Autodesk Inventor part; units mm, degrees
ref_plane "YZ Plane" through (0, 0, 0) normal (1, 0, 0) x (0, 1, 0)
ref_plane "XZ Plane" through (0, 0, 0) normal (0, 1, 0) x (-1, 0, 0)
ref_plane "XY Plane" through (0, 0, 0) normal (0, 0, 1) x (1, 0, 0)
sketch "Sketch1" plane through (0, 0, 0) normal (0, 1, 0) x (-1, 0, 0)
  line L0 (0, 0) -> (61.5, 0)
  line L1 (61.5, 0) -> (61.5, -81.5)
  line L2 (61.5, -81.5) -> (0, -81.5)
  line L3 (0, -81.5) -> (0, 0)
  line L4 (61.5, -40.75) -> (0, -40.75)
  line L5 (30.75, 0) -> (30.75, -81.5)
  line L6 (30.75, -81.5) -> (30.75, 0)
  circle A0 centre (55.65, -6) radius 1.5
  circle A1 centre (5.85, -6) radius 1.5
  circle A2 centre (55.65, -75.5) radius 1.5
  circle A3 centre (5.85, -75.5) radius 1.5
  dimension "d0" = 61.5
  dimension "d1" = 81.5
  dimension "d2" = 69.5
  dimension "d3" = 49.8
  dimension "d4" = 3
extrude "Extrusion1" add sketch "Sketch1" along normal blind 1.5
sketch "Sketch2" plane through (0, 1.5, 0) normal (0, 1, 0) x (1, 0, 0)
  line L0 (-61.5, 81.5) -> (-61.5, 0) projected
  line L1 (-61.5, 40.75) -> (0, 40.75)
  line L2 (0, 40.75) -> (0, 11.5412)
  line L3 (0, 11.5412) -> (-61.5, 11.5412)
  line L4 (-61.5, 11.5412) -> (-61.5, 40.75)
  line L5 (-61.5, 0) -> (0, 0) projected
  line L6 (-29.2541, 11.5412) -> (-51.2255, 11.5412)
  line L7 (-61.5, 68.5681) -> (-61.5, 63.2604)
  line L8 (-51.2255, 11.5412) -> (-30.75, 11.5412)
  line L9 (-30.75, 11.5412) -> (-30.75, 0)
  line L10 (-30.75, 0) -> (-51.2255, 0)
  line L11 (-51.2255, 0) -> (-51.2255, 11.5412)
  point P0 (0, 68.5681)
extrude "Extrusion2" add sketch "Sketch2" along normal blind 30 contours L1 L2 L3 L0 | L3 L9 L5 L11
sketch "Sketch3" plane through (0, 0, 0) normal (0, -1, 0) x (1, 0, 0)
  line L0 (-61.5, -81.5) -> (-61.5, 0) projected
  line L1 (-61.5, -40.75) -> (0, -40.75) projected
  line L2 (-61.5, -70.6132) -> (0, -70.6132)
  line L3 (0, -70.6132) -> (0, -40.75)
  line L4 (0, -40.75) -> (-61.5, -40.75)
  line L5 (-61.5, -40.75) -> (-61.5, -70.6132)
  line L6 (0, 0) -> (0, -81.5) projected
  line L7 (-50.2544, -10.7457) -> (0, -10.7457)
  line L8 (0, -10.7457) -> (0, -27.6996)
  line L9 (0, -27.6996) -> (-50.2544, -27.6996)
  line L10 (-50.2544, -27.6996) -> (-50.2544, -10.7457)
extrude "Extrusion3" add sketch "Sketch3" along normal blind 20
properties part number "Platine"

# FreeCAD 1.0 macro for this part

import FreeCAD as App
import Part
import Sketcher

V = App.Vector
Q = App.Units.Quantity

doc = App.newDocument("Part")
body = doc.addObject("PartDesign::Body", "Body")

# Sketch on XZ plane
sketch1 = body.newObject("Sketcher::SketchObject", "Sketch")
sketch1.AttachmentSupport = (doc.getObject("XZ_Plane"), [""])
sketch1.MapMode = "FlatFace"
sketch1.addGeometry(Part.LineSegment(V(0, 0, 0), V(0, -81.5, 0)), False)
sketch1.addGeometry(Part.LineSegment(V(0, -81.5, 0), V(-61.5, -81.5, 0)), False)
sketch1.addGeometry(Part.LineSegment(V(-61.5, -81.5, 0), V(-61.5, 0, 0)), False)
sketch1.addGeometry(Part.LineSegment(V(-61.5, 0, 0), V(0, 0, 0)), False)
sketch1.addGeometry(Part.Circle(V(-5.8, -6, 0), V(0, 0, 1), 1.5), False)
sketch1.addGeometry(Part.Circle(V(-55.6, -6, 0), V(0, 0, 1), 1.5), False)
sketch1.addGeometry(Part.Circle(V(-5.8, -75.5, 0), V(0, 0, 1), 1.5), False)
sketch1.addGeometry(Part.Circle(V(-55.6, -75.5, 0), V(0, 0, 1), 1.5), False)
sketch1.addConstraint(Sketcher.Constraint("Coincident", 0, 2, 1, 1))
sketch1.addConstraint(Sketcher.Constraint("Coincident", 1, 2, 2, 1))
sketch1.addConstraint(Sketcher.Constraint("Coincident", 2, 2, 3, 1))
sketch1.addConstraint(Sketcher.Constraint("Coincident", 3, 2, 0, 1))
sketch1.addConstraint(Sketcher.Constraint("Vertical", 0))
sketch1.addConstraint(Sketcher.Constraint("Horizontal", 1))
sketch1.addConstraint(Sketcher.Constraint("Vertical", 2))
sketch1.addConstraint(Sketcher.Constraint("Horizontal", 3))
sketch1.addConstraint(Sketcher.Constraint("Coincident", 3, 2, -1, 1))
sketch1.addConstraint(Sketcher.Constraint("Equal", 4, 5))
sketch1.addConstraint(Sketcher.Constraint("Equal", 5, 6))
sketch1.addConstraint(Sketcher.Constraint("Equal", 6, 7))
sketch1.addConstraint(Sketcher.Constraint("Horizontal", 4, 3, 5, 3))
sketch1.addConstraint(Sketcher.Constraint("Horizontal", 6, 3, 7, 3))
sketch1.addConstraint(Sketcher.Constraint("Vertical", 4, 3, 6, 3))
sketch1.addConstraint(Sketcher.Constraint("Vertical", 5, 3, 7, 3))
sketch1.addConstraint(Sketcher.Constraint("Diameter", 4, Q("3 mm")))
sketch1.addConstraint(Sketcher.Constraint("DistanceX", 1, 2, 1, 1, Q("61.5 mm")))
sketch1.addConstraint(Sketcher.Constraint("DistanceY", 0, 2, 0, 1, Q("81.5 mm")))
sketch1.addConstraint(Sketcher.Constraint("DistanceX", 5, 3, 4, 3, Q("49.8 mm")))
sketch1.addConstraint(Sketcher.Constraint("DistanceY", 6, 3, 4, 3, Q("69.5 mm")))
sketch1.addConstraint(Sketcher.Constraint("DistanceY", 4, 3, -1, 1, Q("6 mm")))
sketch1.addConstraint(Sketcher.Constraint("DistanceX", 4, 3, -1, 1, Q("5.85 mm")))
pad1 = body.newObject("PartDesign::Pad", "Pad")
pad1.Profile = sketch1
pad1.Length = 1.5
pad1.Reversed = True

# Sketch on XZ plane
sketch2 = body.newObject("Sketcher::SketchObject", "Sketch001")
sketch2.AttachmentSupport = (doc.getObject("XZ_Plane"), [""])
sketch2.MapMode = "FlatFace"
sketch2.AttachmentOffset = App.Placement(V(0, 0, -1.5), App.Rotation())
sketch2.addGeometry(Part.LineSegment(V(0, -41, 0), V(-62, -41, 0)), False)
sketch2.addGeometry(Part.LineSegment(V(-62, -41, 0), V(-62, -12, 0)), False)
sketch2.addGeometry(Part.LineSegment(V(-62, -12, 0), V(-51, -12, 0)), False)
sketch2.addGeometry(Part.LineSegment(V(-51, -12, 0), V(-51, 0, 0)), False)
sketch2.addGeometry(Part.LineSegment(V(-51, 0, 0), V(-31, 0, 0)), False)
sketch2.addGeometry(Part.LineSegment(V(-31, 0, 0), V(-31, -12, 0)), False)
sketch2.addGeometry(Part.LineSegment(V(-31, -12, 0), V(0, -12, 0)), False)
sketch2.addGeometry(Part.LineSegment(V(0, -12, 0), V(0, -41, 0)), False)
sketch2.addConstraint(Sketcher.Constraint("Coincident", 0, 2, 1, 1))
sketch2.addConstraint(Sketcher.Constraint("Coincident", 1, 2, 2, 1))
sketch2.addConstraint(Sketcher.Constraint("Coincident", 2, 2, 3, 1))
sketch2.addConstraint(Sketcher.Constraint("Coincident", 3, 2, 4, 1))
sketch2.addConstraint(Sketcher.Constraint("Coincident", 4, 2, 5, 1))
sketch2.addConstraint(Sketcher.Constraint("Coincident", 5, 2, 6, 1))
sketch2.addConstraint(Sketcher.Constraint("Coincident", 6, 2, 7, 1))
sketch2.addConstraint(Sketcher.Constraint("Coincident", 7, 2, 0, 1))
sketch2.addConstraint(Sketcher.Constraint("Horizontal", 0))
sketch2.addConstraint(Sketcher.Constraint("Vertical", 1))
sketch2.addConstraint(Sketcher.Constraint("Horizontal", 2))
sketch2.addConstraint(Sketcher.Constraint("Vertical", 3))
sketch2.addConstraint(Sketcher.Constraint("Horizontal", 4))
sketch2.addConstraint(Sketcher.Constraint("Vertical", 5))
sketch2.addConstraint(Sketcher.Constraint("Horizontal", 6))
sketch2.addConstraint(Sketcher.Constraint("Vertical", 7))
sketch2.addConstraint(Sketcher.Constraint("PointOnObject", 3, 2, -1))
sketch2.addConstraint(Sketcher.Constraint("PointOnObject", 6, 2, -2))
sketch2.addConstraint(Sketcher.Constraint("Horizontal", 2, 2, 5, 2))
sketch2.addConstraint(Sketcher.Constraint("DistanceX", 0, 2, 0, 1, Q("61.5 mm")))
sketch2.addConstraint(Sketcher.Constraint("DistanceX", 6, 1, 6, 2, Q("30.75 mm")))
sketch2.addConstraint(Sketcher.Constraint("DistanceY", 0, 2, -1, 1, Q("40.75 mm")))
sketch2.addConstraint(Sketcher.Constraint("DistanceX", 2, 1, 2, 2, Q("10.2745 mm")))
sketch2.addConstraint(Sketcher.Constraint("DistanceY", 1, 1, 1, 2, Q("29.2088 mm")))
pad2 = body.newObject("PartDesign::Pad", "Pad001")
pad2.Profile = sketch2
pad2.Length = 30
pad2.Reversed = True

# Sketch on XZ plane
sketch3 = body.newObject("Sketcher::SketchObject", "Sketch002")
sketch3.AttachmentSupport = (doc.getObject("XZ_Plane"), [""])
sketch3.MapMode = "FlatFace"
sketch3.addGeometry(Part.LineSegment(V(-50, -28, 0), V(0, -28, 0)), False)
sketch3.addGeometry(Part.LineSegment(V(0, -28, 0), V(0, -11, 0)), False)
sketch3.addGeometry(Part.LineSegment(V(0, -11, 0), V(-50, -11, 0)), False)
sketch3.addGeometry(Part.LineSegment(V(-50, -11, 0), V(-50, -28, 0)), False)
sketch3.addGeometry(Part.LineSegment(V(-62, -41, 0), V(-62, -71, 0)), False)
sketch3.addGeometry(Part.LineSegment(V(-62, -71, 0), V(0, -71, 0)), False)
sketch3.addGeometry(Part.LineSegment(V(0, -71, 0), V(0, -41, 0)), False)
sketch3.addGeometry(Part.LineSegment(V(0, -41, 0), V(-62, -41, 0)), False)
sketch3.addConstraint(Sketcher.Constraint("Coincident", 0, 2, 1, 1))
sketch3.addConstraint(Sketcher.Constraint("Coincident", 1, 2, 2, 1))
sketch3.addConstraint(Sketcher.Constraint("Coincident", 2, 2, 3, 1))
sketch3.addConstraint(Sketcher.Constraint("Coincident", 3, 2, 0, 1))
sketch3.addConstraint(Sketcher.Constraint("Coincident", 4, 2, 5, 1))
sketch3.addConstraint(Sketcher.Constraint("Coincident", 5, 2, 6, 1))
sketch3.addConstraint(Sketcher.Constraint("Coincident", 6, 2, 7, 1))
sketch3.addConstraint(Sketcher.Constraint("Coincident", 7, 2, 4, 1))
sketch3.addConstraint(Sketcher.Constraint("Horizontal", 0))
sketch3.addConstraint(Sketcher.Constraint("Vertical", 1))
sketch3.addConstraint(Sketcher.Constraint("Horizontal", 2))
sketch3.addConstraint(Sketcher.Constraint("Vertical", 3))
sketch3.addConstraint(Sketcher.Constraint("Vertical", 4))
sketch3.addConstraint(Sketcher.Constraint("Horizontal", 5))
sketch3.addConstraint(Sketcher.Constraint("Vertical", 6))
sketch3.addConstraint(Sketcher.Constraint("Horizontal", 7))
sketch3.addConstraint(Sketcher.Constraint("PointOnObject", 0, 2, -2))
sketch3.addConstraint(Sketcher.Constraint("PointOnObject", 5, 2, -2))
sketch3.addConstraint(Sketcher.Constraint("DistanceX", 5, 1, 5, 2, Q("61.5 mm")))
sketch3.addConstraint(Sketcher.Constraint("DistanceY", 1, 1, 1, 2, Q("16.954 mm")))
sketch3.addConstraint(Sketcher.Constraint("DistanceY", 6, 2, -1, 1, Q("40.75 mm")))
sketch3.addConstraint(Sketcher.Constraint("DistanceX", 0, 1, 0, 2, Q("50.2544 mm")))
sketch3.addConstraint(Sketcher.Constraint("DistanceY", 4, 2, 4, 1, Q("29.8632 mm")))
sketch3.addConstraint(Sketcher.Constraint("DistanceY", 0, 2, -1, 1, Q("27.6996 mm")))
pad3 = body.newObject("PartDesign::Pad", "Pad002")
pad3.Profile = sketch3
pad3.Length = 20

doc.recompute()
